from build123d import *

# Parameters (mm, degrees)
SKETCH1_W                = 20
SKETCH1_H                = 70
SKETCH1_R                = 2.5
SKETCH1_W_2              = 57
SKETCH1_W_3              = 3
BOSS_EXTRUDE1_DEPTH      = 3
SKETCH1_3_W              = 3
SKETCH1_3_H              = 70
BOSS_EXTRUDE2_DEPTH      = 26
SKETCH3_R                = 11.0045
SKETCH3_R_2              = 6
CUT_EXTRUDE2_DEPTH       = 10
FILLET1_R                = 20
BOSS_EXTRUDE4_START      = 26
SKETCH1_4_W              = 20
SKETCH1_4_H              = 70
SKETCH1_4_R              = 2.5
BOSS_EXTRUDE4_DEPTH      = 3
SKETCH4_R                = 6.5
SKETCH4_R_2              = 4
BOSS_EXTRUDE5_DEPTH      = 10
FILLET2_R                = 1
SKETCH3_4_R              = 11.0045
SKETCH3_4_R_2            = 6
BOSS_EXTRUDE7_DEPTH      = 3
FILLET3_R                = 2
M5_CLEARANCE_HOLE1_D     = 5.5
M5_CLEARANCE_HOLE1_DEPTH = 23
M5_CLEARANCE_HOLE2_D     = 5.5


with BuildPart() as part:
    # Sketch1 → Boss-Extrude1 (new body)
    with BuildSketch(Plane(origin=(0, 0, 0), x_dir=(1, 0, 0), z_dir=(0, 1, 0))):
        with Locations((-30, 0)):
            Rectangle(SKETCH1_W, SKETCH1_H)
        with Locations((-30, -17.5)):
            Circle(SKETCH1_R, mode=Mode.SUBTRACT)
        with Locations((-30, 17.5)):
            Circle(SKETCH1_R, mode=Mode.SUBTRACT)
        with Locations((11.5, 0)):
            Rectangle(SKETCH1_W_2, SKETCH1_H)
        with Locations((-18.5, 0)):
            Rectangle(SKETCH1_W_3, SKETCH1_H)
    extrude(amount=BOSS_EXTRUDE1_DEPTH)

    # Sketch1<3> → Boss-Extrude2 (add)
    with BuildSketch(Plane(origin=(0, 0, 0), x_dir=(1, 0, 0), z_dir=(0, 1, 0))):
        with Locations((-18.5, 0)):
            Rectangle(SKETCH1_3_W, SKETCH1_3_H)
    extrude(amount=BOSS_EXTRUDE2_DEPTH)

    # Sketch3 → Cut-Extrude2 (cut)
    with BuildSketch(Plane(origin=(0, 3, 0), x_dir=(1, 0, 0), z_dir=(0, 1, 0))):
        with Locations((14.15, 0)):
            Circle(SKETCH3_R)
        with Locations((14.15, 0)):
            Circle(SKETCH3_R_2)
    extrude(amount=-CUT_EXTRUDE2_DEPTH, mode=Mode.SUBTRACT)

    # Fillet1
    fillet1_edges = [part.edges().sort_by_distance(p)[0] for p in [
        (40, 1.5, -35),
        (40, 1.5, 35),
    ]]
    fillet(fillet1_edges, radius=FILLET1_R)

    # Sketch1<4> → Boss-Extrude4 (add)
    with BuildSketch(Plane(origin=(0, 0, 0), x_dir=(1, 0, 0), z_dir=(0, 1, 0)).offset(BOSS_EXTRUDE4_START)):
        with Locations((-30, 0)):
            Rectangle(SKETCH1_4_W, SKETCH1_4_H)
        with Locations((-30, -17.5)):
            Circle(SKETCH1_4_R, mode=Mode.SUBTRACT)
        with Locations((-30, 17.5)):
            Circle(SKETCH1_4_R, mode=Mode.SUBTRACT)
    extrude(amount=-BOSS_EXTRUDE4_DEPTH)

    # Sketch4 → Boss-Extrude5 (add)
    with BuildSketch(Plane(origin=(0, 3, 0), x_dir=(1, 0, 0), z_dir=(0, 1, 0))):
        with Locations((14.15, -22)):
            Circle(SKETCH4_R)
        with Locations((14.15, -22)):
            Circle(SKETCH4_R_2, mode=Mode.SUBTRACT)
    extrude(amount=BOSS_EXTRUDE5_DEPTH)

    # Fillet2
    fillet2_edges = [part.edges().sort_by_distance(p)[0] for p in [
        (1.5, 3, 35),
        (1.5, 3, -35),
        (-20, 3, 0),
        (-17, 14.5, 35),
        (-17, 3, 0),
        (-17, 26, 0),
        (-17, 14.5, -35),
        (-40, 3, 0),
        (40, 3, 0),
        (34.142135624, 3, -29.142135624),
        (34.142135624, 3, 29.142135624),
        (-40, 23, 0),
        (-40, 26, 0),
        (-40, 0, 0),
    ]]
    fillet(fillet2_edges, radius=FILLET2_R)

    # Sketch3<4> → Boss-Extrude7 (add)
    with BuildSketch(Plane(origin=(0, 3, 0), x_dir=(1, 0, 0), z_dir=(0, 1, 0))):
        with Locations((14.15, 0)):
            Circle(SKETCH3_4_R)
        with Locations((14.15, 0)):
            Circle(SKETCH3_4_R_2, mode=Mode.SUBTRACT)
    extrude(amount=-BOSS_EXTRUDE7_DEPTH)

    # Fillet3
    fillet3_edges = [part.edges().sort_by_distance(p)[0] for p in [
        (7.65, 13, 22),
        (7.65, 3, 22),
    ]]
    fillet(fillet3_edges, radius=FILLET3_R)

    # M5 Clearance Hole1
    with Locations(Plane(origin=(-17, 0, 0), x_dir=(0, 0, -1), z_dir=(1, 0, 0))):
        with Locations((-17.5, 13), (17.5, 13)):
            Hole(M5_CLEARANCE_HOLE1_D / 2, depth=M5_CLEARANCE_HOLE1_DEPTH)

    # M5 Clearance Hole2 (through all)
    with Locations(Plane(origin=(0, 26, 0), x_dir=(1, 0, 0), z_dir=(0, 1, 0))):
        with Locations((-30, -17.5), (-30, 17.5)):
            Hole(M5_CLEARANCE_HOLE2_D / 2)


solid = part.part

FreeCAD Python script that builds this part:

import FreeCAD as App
import Part
import Sketcher

V = App.Vector
Q = App.Units.Quantity


def edges_at(feature, points):
    """Names of the edges that pass closest to the given points."""
    edges = feature.Shape.Edges
    near = lambda p: min(range(len(edges)), key=lambda i: edges[i].distToShape(Part.Vertex(*p))[0])
    return sorted({f"Edge{near(p) + 1}" for p in points})


def add_polygon(sketch, points):
    """Adds a closed chain of lines whose ends are joined by coincident constraints."""
    first, n = sketch.GeometryCount, len(points)
    for a, b in zip(points, points[1:] + points[:1]):
        sketch.addGeometry(Part.LineSegment(App.Vector(*a, 0), App.Vector(*b, 0)), False)
    for i in range(n):
        sketch.addConstraint(Sketcher.Constraint("Coincident", first + i, 2, first + (i + 1) % n, 1))

doc = App.newDocument("Part")
body = doc.addObject("PartDesign::Body", "Body")

# Sketch on XZ plane
sketch1 = doc.addObject("Sketcher::SketchObject", "Sketch")
body.addObject(sketch1)
sketch1.AttachmentSupport = (doc.XZ_Plane, [""])
sketch1.MapMode = "FlatFace"
add_polygon(sketch1, [(-40, -35), (-40, 35), (40, 35), (40, -35)])  # lines 0-3
sketch1.addGeometry(Part.Circle(V(-30, 17.5, 0), V(0, 0, 1), 2.5), False)  # 4
sketch1.addGeometry(Part.Circle(V(-30, -17.5, 0), V(0, 0, 1), 2.5), False)  # 5
sketch1.addConstraint([
    Sketcher.Constraint("Vertical", 0),
    Sketcher.Constraint("Horizontal", 1),
    Sketcher.Constraint("Vertical", 2),
    Sketcher.Constraint("Horizontal", 3),
    Sketcher.Constraint("Equal", 4, 5),
    Sketcher.Constraint("Symmetric", 0, 2, 2, 2, -1, 1),
    Sketcher.Constraint("Symmetric", 4, 3, 5, 3, -1),
    Sketcher.Constraint("Diameter", 4, Q("5 mm")),
    Sketcher.Constraint("DistanceX", 1, 1, 1, 2, Q("80 mm")),
    Sketcher.Constraint("DistanceY", 0, 1, 0, 2, Q("70 mm")),
    Sketcher.Constraint("DistanceX", 4, 3, -1, 1, Q("30 mm")),
    Sketcher.Constraint("DistanceY", 5, 3, 4, 3, Q("35 mm")),
])
pad1 = doc.addObject("PartDesign::Pad", "Pad")
body.addObject(pad1)
pad1.Profile = sketch1
pad1.Length = 3
pad1.Reversed = True

# Sketch on XZ plane
sketch2 = doc.addObject("Sketcher::SketchObject", "Sketch001")
body.addObject(sketch2)
sketch2.AttachmentSupport = (doc.XZ_Plane, [""])
sketch2.MapMode = "FlatFace"
add_polygon(sketch2, [(-20, -35), (-20, 35), (-17, 35), (-17, -35)])  # lines 0-3
sketch2.addConstraint([
    Sketcher.Constraint("Vertical", 0),
    Sketcher.Constraint("Horizontal", 1),
    Sketcher.Constraint("Vertical", 2),
    Sketcher.Constraint("Horizontal", 3),
    Sketcher.Constraint("DistanceX", 1, 1, 1, 2, Q("3 mm")),
    Sketcher.Constraint("DistanceY", 0, 1, 0, 2, Q("70 mm")),
    Sketcher.Constraint("DistanceX", 0, 2, -1, 1, Q("20 mm")),
    Sketcher.Constraint("DistanceY", -1, 1, 0, 2, Q("35 mm")),
])
pad2 = doc.addObject("PartDesign::Pad", "Pad001")
body.addObject(pad2)
pad2.Profile = sketch2
pad2.Length = 26
pad2.Reversed = True

# Sketch on XZ plane
sketch3 = doc.addObject("Sketcher::SketchObject", "Sketch002")
body.addObject(sketch3)
sketch3.AttachmentSupport = (doc.XZ_Plane, [""])
sketch3.MapMode = "FlatFace"
sketch3.AttachmentOffset = App.Placement(V(0, 0, -3), App.Rotation())
sketch3.addGeometry(Part.Circle(V(14, 0, 0), V(0, 0, 1), 11), False)
sketch3.addConstraint([
    Sketcher.Constraint("PointOnObject", 0, 3, -1),
    Sketcher.Constraint("Diameter", 0, Q("22.009 mm")),
    Sketcher.Constraint("DistanceX", -1, 1, 0, 3, Q("14.15 mm")),
])
pocket1 = doc.addObject("PartDesign::Pocket", "Pocket")
body.addObject(pocket1)
pocket1.Profile = sketch3
pocket1.Length = 10
pocket1.Reversed = True
doc.recompute()

fillet = doc.addObject("PartDesign::Fillet", "Fillet")
body.addObject(fillet)
fillet.Base = (pocket1, edges_at(pocket1, [(40, 1.5, -35), (40, 1.5, 35)]))
fillet.Radius = 20

# Sketch on XZ plane
sketch4 = doc.addObject("Sketcher::SketchObject", "Sketch003")
body.addObject(sketch4)
sketch4.AttachmentSupport = (doc.XZ_Plane, [""])
sketch4.MapMode = "FlatFace"
sketch4.AttachmentOffset = App.Placement(V(0, 0, -26), App.Rotation())
add_polygon(sketch4, [(-40, -35), (-40, 35), (-20, 35), (-20, -35)])  # lines 0-3
sketch4.addGeometry(Part.Circle(V(-30, 17.5, 0), V(0, 0, 1), 2.5), False)  # 4
sketch4.addGeometry(Part.Circle(V(-30, -17.5, 0), V(0, 0, 1), 2.5), False)  # 5
sketch4.addConstraint([
    Sketcher.Constraint("Vertical", 0),
    Sketcher.Constraint("Horizontal", 1),
    Sketcher.Constraint("Vertical", 2),
    Sketcher.Constraint("Horizontal", 3),
    Sketcher.Constraint("Equal", 4, 5),
    Sketcher.Constraint("Symmetric", 4, 3, 5, 3, -1),
    Sketcher.Constraint("Diameter", 4, Q("5 mm")),
    Sketcher.Constraint("DistanceX", 1, 1, 1, 2, Q("20 mm")),
    Sketcher.Constraint("DistanceY", 0, 1, 0, 2, Q("70 mm")),
    Sketcher.Constraint("DistanceX", 4, 3, -1, 1, Q("30 mm")),
    Sketcher.Constraint("DistanceX", 0, 2, -1, 1, Q("40 mm")),
    Sketcher.Constraint("DistanceY", -1, 1, 0, 2, Q("35 mm")),
    Sketcher.Constraint("DistanceY", 5, 3, 4, 3, Q("35 mm")),
])
pad3 = doc.addObject("PartDesign::Pad", "Pad002")
body.addObject(pad3)
pad3.Profile = sketch4
pad3.Length = 3

# Sketch on XZ plane
sketch5 = doc.addObject("Sketcher::SketchObject", "Sketch004")
body.addObject(sketch5)
sketch5.AttachmentSupport = (doc.XZ_Plane, [""])
sketch5.MapMode = "FlatFace"
sketch5.AttachmentOffset = App.Placement(V(0, 0, -3), App.Rotation())
sketch5.addGeometry([
    Part.Circle(V(14.2, 22, 0), V(0, 0, 1), 6.5),
    Part.Circle(V(14.2, 22, 0), V(0, 0, 1), 4),
], False)
sketch5.addConstraint([
    Sketcher.Constraint("Coincident", 1, 3, 0, 3),
    Sketcher.Constraint("Diameter", 0, Q("13 mm")),
    Sketcher.Constraint("Diameter", 1, Q("8 mm")),
    Sketcher.Constraint("DistanceY", -1, 1, 0, 3, Q("22 mm")),
    Sketcher.Constraint("DistanceX", -1, 1, 0, 3, Q("14.15 mm")),
])
pad4 = doc.addObject("PartDesign::Pad", "Pad003")
body.addObject(pad4)
pad4.Profile = sketch5
pad4.Length = 10
pad4.Reversed = True
doc.recompute()

fillet2 = doc.addObject("PartDesign::Fillet", "Fillet001")
body.addObject(fillet2)
fillet2.Base = (pad4, edges_at(pad4, [
    (1.5, 3, 35),
    (1.5, 3, -35),
    (-20, 3, 0),
    (-17, 14.5, 35),
    (-17, 3, 0),
    (-17, 26, 0),
    (-17, 14.5, -35),
    (-40, 3, 0),
    (40, 3, 0),
    (34.142, 3, -29.142),
    (34.142, 3, 29.142),
    (-40, 23, 0),
    (-40, 26, 0),
    (-40, 0, 0),
]))
fillet2.Radius = 1

# Sketch on XZ plane
sketch6 = doc.addObject("Sketcher::SketchObject", "Sketch005")
body.addObject(sketch6)
sketch6.AttachmentSupport = (doc.XZ_Plane, [""])
sketch6.MapMode = "FlatFace"
sketch6.AttachmentOffset = App.Placement(V(0, 0, -3), App.Rotation())
sketch6.addGeometry([
    Part.Circle(V(14, 0, 0), V(0, 0, 1), 11),
    Part.Circle(V(14, 0, 0), V(0, 0, 1), 6),
], False)
sketch6.addConstraint([
    Sketcher.Constraint("Coincident", 1, 3, 0, 3),
    Sketcher.Constraint("PointOnObject", 0, 3, -1),
    Sketcher.Constraint("Diameter", 1, Q("12 mm")),
    Sketcher.Constraint("Diameter", 0, Q("22.009 mm")),
    Sketcher.Constraint("DistanceX", -1, 1, 0, 3, Q("14.15 mm")),
])
pad5 = doc.addObject("PartDesign::Pad", "Pad004")
body.addObject(pad5)
pad5.Profile = sketch6
pad5.Length = 3
doc.recompute()

fillet3 = doc.addObject("PartDesign::Fillet", "Fillet002")
body.addObject(fillet3)
fillet3.Base = (pad5, edges_at(pad5, [(7.65, 13, 22), (7.65, 3, 22)]))
fillet3.Radius = 2

# Sketch on YZ plane
sketch7 = doc.addObject("Sketcher::SketchObject", "Sketch006")
body.addObject(sketch7)
sketch7.AttachmentSupport = (doc.YZ_Plane, [""])
sketch7.MapMode = "FlatFace"
sketch7.AttachmentOffset = App.Placement(V(0, 0, -17), App.Rotation())
sketch7.addGeometry([
    Part.Circle(V(13, 17.5, 0), V(0, 0, 1), 2.8),
    Part.Circle(V(13, -17.5, 0), V(0, 0, 1), 2.8),
], False)
sketch7.addConstraint([
    Sketcher.Constraint("Equal", 0, 1),
    Sketcher.Constraint("Symmetric", 0, 3, 1, 3, -1),
    Sketcher.Constraint("Diameter", 0, Q("5.5 mm")),
    Sketcher.Constraint("DistanceX", -1, 1, 0, 3, Q("13 mm")),
    Sketcher.Constraint("DistanceY", 1, 3, 0, 3, Q("35 mm")),
])
doc.recompute()
hole = doc.addObject("PartDesign::Hole", "Hole")
body.addObject(hole)
hole.Profile = sketch7
hole.ThreadType = "None"
hole.Diameter = 5.5
hole.DepthType = "Dimension"
hole.Depth = 23
hole.DrillPoint = "Flat"

# Sketch on XZ plane
sketch8 = doc.addObject("Sketcher::SketchObject", "Sketch007")
body.addObject(sketch8)
sketch8.AttachmentSupport = (doc.XZ_Plane, [""])
sketch8.MapMode = "FlatFace"
sketch8.AttachmentOffset = App.Placement(V(0, 0, -26), App.Rotation())
sketch8.addGeometry([
    Part.Circle(V(-30, 17.5, 0), V(0, 0, 1), 2.8),
    Part.Circle(V(-30, -17.5, 0), V(0, 0, 1), 2.8),
], False)
sketch8.addConstraint([
    Sketcher.Constraint("Equal", 0, 1),
    Sketcher.Constraint("Symmetric", 0, 3, 1, 3, -1),
    Sketcher.Constraint("Diameter", 0, Q("5.5 mm")),
    Sketcher.Constraint("DistanceX", 0, 3, -1, 1, Q("30 mm")),
    Sketcher.Constraint("DistanceY", 1, 3, 0, 3, Q("35 mm")),
])
doc.recompute()
hole2 = doc.addObject("PartDesign::Hole", "Hole001")
body.addObject(hole2)
hole2.Profile = sketch8
hole2.ThreadType = "None"
hole2.Diameter = 5.5
hole2.DepthType = "ThroughAll"
hole2.Reversed = True

doc.recompute()
